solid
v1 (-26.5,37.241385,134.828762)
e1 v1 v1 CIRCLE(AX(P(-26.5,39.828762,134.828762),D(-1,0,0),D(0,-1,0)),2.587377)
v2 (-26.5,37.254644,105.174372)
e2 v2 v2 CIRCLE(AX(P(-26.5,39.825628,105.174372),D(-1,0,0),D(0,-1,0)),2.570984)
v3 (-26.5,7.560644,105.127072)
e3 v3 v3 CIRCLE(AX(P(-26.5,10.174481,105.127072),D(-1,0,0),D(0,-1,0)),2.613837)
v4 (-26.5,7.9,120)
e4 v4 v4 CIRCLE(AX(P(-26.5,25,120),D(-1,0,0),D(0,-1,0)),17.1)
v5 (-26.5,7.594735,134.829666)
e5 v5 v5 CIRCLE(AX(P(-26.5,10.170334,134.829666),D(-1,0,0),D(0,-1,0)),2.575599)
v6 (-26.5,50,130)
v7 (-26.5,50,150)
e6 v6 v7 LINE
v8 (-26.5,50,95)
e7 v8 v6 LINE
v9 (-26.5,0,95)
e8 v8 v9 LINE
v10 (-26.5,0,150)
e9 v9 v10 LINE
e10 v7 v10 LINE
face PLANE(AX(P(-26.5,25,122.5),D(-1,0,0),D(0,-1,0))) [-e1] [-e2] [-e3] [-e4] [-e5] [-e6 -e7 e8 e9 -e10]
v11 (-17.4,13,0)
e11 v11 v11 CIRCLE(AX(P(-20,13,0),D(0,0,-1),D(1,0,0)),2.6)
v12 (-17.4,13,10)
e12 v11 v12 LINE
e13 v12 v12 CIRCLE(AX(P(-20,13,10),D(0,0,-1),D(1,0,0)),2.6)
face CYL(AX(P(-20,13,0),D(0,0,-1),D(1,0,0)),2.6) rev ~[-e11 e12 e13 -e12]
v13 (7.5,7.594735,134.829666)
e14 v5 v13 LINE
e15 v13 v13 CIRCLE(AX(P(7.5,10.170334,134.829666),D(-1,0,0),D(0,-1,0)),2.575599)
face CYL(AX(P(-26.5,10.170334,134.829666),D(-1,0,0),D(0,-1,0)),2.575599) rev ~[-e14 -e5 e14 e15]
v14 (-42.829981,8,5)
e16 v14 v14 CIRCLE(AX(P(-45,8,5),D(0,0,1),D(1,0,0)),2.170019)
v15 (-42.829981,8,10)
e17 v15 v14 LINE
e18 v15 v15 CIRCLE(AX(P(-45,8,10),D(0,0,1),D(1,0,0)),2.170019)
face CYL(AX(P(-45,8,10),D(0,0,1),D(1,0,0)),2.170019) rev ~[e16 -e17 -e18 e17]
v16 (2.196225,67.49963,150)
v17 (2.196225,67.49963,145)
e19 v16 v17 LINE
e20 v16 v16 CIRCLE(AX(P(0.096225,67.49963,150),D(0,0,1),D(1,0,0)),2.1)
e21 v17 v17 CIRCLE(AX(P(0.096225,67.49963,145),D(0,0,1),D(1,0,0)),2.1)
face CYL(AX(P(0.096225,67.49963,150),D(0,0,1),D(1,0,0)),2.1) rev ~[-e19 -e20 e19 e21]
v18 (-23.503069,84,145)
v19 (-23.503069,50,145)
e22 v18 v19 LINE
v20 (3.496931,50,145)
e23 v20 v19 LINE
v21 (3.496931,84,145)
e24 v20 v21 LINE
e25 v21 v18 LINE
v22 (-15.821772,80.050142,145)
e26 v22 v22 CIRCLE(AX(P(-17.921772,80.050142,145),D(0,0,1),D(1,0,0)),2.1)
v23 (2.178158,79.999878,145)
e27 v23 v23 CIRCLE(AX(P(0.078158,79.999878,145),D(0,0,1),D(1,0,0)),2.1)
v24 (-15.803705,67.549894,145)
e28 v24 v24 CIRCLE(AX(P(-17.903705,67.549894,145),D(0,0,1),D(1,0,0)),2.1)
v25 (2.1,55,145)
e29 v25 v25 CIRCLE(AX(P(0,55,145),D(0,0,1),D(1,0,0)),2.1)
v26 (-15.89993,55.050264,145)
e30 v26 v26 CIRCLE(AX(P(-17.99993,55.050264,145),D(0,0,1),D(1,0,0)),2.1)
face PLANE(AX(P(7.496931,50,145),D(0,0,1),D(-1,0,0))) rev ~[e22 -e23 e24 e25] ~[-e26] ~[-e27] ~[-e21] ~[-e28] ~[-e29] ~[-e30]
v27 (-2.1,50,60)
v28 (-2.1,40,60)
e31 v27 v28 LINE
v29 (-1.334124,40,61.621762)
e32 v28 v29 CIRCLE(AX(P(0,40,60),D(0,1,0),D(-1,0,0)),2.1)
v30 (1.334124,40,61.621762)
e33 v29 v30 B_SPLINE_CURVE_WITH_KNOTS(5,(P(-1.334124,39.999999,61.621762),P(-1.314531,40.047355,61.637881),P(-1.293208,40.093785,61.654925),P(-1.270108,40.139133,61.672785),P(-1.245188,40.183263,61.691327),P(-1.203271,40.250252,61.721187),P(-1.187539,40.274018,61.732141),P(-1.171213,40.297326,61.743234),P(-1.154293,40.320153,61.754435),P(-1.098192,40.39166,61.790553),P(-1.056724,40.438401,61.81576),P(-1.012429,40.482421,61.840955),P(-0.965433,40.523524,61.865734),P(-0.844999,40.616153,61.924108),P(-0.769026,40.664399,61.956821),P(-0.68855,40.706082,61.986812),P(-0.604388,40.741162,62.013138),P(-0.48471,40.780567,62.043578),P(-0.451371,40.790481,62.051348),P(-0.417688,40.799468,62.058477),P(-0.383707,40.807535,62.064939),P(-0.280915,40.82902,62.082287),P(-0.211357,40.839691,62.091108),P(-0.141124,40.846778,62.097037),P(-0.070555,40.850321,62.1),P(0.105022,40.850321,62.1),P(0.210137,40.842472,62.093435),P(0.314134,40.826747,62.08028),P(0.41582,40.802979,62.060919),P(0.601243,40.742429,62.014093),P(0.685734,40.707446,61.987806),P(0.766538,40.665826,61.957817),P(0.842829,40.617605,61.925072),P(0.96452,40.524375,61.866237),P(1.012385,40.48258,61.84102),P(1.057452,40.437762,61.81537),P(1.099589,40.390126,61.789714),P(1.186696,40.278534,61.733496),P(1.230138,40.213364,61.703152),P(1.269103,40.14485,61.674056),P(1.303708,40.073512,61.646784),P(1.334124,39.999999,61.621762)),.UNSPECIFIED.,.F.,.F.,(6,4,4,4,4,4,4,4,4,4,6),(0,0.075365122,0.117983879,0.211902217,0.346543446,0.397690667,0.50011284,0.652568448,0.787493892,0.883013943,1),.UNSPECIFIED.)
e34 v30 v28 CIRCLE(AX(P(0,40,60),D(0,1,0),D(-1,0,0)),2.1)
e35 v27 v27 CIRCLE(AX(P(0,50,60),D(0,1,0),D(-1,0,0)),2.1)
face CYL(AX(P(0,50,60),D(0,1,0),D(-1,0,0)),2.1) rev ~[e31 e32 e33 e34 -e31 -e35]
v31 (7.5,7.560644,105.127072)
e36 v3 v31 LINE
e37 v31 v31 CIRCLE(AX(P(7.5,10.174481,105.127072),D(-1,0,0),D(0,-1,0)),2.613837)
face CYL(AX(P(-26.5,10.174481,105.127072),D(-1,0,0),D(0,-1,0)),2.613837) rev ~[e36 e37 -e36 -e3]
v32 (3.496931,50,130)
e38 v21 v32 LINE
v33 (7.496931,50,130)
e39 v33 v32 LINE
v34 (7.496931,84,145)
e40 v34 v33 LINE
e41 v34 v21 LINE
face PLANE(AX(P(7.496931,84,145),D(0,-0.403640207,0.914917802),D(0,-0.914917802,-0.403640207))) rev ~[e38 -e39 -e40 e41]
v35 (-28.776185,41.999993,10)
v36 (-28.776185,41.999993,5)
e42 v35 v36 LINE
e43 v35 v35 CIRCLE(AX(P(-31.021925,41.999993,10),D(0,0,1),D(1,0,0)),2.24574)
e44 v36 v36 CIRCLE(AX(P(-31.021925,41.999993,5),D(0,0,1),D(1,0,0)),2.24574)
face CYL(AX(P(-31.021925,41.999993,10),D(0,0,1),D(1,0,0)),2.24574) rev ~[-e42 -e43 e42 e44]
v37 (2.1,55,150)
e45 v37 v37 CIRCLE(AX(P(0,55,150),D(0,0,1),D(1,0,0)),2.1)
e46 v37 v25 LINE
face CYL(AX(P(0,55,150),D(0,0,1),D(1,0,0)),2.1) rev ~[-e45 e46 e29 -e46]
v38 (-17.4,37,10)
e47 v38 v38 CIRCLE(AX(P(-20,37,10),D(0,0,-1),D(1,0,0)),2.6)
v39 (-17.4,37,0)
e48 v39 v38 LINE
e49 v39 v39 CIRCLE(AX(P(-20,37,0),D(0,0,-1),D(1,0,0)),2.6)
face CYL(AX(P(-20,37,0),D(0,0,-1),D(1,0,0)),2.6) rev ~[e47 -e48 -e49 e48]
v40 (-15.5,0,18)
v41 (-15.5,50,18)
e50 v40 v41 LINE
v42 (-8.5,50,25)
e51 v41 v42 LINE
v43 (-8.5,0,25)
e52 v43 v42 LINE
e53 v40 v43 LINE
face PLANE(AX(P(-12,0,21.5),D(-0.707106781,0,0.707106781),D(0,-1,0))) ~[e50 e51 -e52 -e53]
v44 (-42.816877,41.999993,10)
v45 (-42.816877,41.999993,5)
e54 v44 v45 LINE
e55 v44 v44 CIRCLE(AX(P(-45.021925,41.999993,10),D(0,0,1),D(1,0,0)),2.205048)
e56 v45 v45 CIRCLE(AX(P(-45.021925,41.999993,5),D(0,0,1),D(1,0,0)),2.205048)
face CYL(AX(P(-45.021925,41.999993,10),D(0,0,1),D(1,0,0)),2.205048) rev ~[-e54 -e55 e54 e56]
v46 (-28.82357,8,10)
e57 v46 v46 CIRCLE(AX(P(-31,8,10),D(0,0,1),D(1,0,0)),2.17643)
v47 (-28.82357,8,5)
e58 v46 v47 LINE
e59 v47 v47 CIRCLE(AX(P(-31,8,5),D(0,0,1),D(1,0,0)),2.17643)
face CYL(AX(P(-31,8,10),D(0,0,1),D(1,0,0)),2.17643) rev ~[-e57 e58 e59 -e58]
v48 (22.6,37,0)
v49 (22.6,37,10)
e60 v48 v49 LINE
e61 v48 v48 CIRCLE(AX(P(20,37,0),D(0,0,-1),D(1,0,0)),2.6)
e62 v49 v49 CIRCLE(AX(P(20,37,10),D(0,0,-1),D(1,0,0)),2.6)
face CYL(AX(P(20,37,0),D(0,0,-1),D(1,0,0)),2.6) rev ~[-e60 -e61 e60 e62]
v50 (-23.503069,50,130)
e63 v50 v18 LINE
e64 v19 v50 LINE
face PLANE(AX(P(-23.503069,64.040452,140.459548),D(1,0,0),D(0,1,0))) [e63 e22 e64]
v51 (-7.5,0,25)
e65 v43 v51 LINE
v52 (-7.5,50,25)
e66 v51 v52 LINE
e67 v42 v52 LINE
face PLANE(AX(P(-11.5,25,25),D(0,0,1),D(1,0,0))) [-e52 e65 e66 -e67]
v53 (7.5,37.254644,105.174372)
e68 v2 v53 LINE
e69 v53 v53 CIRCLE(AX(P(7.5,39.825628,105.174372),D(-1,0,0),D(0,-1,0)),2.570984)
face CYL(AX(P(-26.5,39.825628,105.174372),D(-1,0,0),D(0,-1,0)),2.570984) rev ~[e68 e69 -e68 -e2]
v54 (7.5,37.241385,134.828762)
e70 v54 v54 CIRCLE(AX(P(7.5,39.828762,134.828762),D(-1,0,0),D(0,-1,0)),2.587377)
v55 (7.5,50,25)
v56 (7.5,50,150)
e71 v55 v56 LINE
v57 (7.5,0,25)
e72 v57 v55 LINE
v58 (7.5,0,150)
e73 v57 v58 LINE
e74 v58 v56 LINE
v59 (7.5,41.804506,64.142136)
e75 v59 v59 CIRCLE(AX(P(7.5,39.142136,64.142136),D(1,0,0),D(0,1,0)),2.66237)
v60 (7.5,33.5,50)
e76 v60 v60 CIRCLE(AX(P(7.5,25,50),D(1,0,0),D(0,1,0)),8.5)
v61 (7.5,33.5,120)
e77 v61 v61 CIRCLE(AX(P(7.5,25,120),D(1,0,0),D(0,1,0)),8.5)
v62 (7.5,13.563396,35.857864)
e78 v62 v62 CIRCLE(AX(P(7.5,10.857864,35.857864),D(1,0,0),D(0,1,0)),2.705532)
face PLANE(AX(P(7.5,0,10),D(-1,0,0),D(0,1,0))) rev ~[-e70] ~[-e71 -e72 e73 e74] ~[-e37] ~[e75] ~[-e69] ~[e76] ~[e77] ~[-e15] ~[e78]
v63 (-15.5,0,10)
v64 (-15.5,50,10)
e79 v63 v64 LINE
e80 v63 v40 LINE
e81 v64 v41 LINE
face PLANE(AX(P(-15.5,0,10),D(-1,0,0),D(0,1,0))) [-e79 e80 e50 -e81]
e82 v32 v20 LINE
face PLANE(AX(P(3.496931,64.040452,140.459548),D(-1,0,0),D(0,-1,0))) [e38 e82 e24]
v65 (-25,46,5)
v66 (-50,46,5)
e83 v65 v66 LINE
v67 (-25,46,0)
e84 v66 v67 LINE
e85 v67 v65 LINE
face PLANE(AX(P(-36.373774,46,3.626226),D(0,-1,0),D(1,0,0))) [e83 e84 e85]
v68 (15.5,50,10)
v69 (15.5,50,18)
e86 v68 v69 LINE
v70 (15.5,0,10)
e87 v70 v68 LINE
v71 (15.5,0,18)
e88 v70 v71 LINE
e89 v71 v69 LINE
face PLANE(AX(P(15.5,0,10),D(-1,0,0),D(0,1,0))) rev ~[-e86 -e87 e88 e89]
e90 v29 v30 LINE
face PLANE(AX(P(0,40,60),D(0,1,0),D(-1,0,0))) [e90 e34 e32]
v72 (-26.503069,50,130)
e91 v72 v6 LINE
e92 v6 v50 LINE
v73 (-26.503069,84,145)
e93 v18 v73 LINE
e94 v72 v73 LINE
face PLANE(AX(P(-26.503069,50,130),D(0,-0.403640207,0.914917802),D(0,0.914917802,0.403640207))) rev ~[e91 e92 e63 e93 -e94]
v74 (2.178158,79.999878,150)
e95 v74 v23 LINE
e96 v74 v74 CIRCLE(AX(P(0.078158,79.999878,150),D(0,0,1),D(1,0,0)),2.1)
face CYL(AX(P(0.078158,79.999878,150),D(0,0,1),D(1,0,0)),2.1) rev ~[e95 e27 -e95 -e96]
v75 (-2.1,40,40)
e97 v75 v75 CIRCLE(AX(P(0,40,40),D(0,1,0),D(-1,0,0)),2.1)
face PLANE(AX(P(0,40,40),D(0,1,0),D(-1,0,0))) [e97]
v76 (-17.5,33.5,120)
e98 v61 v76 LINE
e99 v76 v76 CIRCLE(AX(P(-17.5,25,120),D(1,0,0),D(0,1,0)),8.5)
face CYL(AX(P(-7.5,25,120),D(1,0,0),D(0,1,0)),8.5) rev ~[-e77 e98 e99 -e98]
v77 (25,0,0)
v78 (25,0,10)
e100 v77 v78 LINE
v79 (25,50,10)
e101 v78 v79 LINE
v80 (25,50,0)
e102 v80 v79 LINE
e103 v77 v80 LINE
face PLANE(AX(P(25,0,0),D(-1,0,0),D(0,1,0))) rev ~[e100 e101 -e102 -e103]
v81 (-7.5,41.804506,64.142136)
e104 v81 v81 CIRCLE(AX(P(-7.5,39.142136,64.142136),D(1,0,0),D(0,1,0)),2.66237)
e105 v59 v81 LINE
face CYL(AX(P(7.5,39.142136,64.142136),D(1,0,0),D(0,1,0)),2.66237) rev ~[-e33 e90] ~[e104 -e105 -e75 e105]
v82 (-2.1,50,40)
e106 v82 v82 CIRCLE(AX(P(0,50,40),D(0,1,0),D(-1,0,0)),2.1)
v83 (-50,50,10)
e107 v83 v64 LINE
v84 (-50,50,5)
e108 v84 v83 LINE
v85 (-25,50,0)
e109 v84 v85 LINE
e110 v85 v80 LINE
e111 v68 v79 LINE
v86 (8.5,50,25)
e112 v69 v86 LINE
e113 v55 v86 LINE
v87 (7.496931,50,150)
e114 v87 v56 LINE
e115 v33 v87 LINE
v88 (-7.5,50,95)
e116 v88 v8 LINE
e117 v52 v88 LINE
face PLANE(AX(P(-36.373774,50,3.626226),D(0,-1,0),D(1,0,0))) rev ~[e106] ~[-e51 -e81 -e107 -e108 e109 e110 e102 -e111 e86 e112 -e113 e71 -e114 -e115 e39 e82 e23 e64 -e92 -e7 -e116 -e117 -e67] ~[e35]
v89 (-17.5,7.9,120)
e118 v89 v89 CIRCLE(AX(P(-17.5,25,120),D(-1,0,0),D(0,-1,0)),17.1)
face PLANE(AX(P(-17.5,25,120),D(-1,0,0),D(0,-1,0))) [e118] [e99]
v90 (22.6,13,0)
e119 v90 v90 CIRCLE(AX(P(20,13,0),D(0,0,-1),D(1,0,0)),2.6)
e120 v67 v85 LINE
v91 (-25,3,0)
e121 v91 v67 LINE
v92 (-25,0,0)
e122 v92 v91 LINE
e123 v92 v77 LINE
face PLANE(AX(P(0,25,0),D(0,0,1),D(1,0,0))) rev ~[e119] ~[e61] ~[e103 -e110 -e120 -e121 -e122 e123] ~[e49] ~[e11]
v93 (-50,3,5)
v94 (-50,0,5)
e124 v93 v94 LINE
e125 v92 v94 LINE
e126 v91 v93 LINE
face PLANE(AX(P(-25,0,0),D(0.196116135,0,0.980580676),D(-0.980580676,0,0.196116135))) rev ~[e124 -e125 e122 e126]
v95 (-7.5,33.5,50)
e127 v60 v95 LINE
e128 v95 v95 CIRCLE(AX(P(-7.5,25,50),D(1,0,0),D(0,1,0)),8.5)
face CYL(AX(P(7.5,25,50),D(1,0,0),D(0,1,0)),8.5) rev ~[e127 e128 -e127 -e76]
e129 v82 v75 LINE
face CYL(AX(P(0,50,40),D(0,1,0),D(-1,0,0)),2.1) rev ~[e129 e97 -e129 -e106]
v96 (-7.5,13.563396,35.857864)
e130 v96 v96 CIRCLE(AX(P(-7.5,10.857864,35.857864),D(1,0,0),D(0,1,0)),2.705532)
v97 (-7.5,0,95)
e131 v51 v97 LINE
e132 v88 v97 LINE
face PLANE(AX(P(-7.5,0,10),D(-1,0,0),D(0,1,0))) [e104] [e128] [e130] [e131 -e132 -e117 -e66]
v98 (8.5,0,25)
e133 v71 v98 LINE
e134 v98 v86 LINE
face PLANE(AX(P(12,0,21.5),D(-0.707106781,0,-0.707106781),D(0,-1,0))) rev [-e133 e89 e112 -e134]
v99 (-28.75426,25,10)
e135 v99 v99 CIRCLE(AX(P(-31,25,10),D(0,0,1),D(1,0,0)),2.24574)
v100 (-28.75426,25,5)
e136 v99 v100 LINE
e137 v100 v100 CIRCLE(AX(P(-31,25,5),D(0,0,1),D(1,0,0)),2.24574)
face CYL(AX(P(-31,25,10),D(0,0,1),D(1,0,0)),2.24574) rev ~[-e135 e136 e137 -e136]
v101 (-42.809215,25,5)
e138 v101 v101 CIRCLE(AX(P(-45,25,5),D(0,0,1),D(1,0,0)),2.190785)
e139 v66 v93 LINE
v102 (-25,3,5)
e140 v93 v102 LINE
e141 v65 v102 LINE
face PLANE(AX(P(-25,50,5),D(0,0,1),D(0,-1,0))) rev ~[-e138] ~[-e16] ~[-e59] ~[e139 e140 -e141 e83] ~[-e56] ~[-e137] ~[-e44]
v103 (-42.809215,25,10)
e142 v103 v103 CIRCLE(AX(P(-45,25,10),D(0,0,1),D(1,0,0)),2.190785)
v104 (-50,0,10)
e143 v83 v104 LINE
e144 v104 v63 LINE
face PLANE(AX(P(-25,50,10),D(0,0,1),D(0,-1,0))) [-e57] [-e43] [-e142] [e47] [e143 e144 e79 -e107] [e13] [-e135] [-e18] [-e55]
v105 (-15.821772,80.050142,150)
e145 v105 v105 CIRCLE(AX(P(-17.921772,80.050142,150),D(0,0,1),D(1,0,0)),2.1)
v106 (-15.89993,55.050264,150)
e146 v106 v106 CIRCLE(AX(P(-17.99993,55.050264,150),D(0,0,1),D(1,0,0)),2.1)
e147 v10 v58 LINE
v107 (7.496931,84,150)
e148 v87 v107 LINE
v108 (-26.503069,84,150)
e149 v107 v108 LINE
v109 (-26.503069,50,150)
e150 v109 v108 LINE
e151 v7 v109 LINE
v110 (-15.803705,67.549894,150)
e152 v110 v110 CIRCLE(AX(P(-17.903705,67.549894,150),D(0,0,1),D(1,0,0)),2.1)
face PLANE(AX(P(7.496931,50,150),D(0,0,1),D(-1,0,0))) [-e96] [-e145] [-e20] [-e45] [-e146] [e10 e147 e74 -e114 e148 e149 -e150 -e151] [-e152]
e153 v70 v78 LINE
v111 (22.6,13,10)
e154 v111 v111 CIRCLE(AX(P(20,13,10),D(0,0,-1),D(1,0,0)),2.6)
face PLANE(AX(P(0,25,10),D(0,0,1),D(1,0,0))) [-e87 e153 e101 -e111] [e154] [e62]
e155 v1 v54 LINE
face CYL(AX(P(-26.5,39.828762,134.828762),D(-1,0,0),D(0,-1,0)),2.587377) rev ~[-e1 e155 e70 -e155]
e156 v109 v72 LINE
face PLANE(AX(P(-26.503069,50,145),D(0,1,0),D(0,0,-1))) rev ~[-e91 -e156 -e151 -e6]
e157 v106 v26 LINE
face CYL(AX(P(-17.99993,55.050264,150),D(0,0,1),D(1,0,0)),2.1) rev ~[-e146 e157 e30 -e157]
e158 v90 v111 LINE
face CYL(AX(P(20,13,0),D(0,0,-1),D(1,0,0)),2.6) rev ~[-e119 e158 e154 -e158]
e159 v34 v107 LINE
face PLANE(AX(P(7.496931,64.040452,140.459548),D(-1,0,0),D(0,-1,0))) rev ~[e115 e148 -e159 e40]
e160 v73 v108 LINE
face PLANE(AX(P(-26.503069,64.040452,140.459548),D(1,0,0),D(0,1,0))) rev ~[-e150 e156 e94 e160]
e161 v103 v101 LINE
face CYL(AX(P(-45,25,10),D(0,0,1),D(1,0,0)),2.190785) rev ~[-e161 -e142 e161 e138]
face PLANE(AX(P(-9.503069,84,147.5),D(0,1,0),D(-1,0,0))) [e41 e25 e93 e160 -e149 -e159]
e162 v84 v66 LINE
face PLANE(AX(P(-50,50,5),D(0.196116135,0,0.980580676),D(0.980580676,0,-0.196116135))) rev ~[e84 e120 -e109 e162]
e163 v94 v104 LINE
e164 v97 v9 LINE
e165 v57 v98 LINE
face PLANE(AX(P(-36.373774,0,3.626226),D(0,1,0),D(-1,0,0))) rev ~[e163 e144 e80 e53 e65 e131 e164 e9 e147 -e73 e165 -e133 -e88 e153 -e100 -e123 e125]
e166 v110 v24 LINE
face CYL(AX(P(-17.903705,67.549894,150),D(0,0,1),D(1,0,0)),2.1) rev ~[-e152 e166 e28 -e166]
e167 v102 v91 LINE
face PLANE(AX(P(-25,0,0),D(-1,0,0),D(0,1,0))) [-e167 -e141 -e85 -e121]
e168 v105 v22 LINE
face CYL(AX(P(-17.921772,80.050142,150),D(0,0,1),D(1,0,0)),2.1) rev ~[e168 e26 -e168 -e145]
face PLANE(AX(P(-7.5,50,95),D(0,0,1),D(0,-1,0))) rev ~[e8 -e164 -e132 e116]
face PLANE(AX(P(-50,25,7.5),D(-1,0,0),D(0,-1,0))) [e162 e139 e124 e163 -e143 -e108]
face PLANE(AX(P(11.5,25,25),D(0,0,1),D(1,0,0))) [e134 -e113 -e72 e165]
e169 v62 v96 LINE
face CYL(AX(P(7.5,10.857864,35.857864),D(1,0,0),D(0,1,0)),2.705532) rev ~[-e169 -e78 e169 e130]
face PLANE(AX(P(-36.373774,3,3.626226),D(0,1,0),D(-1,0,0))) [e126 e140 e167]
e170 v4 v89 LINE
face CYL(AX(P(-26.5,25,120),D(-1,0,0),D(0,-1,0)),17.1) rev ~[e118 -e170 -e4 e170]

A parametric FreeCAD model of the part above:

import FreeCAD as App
import Part
import Sketcher

V = App.Vector


def edges_at(feature, points):
    """Names of the edges that pass closest to the given points."""
    edges = feature.Shape.Edges
    near = lambda p: min(range(len(edges)), key=lambda i: edges[i].distToShape(Part.Vertex(*p))[0])
    return sorted({f"Edge{near(p) + 1}" for p in points})

doc = App.newDocument("Part")
body = doc.addObject("PartDesign::Body", "Body")

sketch1 = body.newObject("Sketcher::SketchObject", "Sketch")
sketch1.AttachmentSupport = (doc.getObject("XY_Plane"), [""])
sketch1.MapMode = "FlatFace"
sketch1.addGeometry([
    Part.LineSegment(V(-25, 50, 0), V(-25, 0, 0)),
    Part.LineSegment(V(-25, 0, 0), V(25, 0, 0)),
    Part.LineSegment(V(25, 0, 0), V(25, 50, 0)),
    Part.LineSegment(V(25, 50, 0), V(-25, 50, 0)),
], False)
sketch1.addConstraint([
    Sketcher.Constraint("Coincident", 0, 2, 1, 1),
    Sketcher.Constraint("Coincident", 1, 2, 2, 1),
    Sketcher.Constraint("Coincident", 2, 2, 3, 1),
    Sketcher.Constraint("Coincident", 3, 2, 0, 1),
    Sketcher.Constraint("Vertical", 0),
    Sketcher.Constraint("Horizontal", 1),
    Sketcher.Constraint("Vertical", 2),
    Sketcher.Constraint("Horizontal", 3),
    Sketcher.Constraint("Symmetric", 0, 2, 1, 2, -1, 1),
    Sketcher.Constraint("Equal", 3, 0),
    Sketcher.Constraint("DistanceX", 1, 1, 1, 2, 50.0),
])
pad1 = body.newObject("PartDesign::Pad", "Pad")
pad1.Profile = sketch1
pad1.Length = 10

sketch2 = body.newObject("Sketcher::SketchObject", "Sketch001")
sketch2.AttachmentSupport = (doc.getObject("XY_Plane"), [""])
sketch2.MapMode = "FlatFace"
sketch2.AttachmentOffset = App.Placement(V(0, 0, 10), App.Rotation())
sketch2.addGeometry([
    Part.LineSegment(V(-8, 50, 0), V(-8, 0, 0)),
    Part.LineSegment(V(-8, 0, 0), V(8, 0, 0)),
    Part.LineSegment(V(8, 0, 0), V(8, 50, 0)),
    Part.LineSegment(V(8, 50, 0), V(-8, 50, 0)),
], False)
sketch2.addConstraint([
    Sketcher.Constraint("Coincident", 0, 2, 1, 1),
    Sketcher.Constraint("Coincident", 1, 2, 2, 1),
    Sketcher.Constraint("Coincident", 2, 2, 3, 1),
    Sketcher.Constraint("Coincident", 3, 2, 0, 1),
    Sketcher.Constraint("Vertical", 0),
    Sketcher.Constraint("Horizontal", 1),
    Sketcher.Constraint("Vertical", 2),
    Sketcher.Constraint("Horizontal", 3),
    Sketcher.Constraint("Symmetric", 0, 2, 1, 2, -1, 1),
    Sketcher.Constraint("DistanceX", 1, 1, 1, 2, 15.0),
    Sketcher.Constraint("DistanceY", 0, 2, 0, 1, 50.0),
])
pad2 = body.newObject("PartDesign::Pad", "Pad001")
pad2.Profile = sketch2
pad2.Length = 140

sketch3 = body.newObject("Sketcher::SketchObject", "Sketch002")
sketch3.AttachmentSupport = (doc.getObject("XY_Plane"), [""])
sketch3.MapMode = "FlatFace"
sketch3.addGeometry([
    Part.Circle(V(-20, 13, 0), V(0, 0, 1), 2.6),
    Part.Circle(V(20, 13, 0), V(0, 0, 1), 2.6),
    Part.Circle(V(-20, 37, 0), V(0, 0, 1), 2.6),
    Part.Circle(V(20, 37, 0), V(0, 0, 1), 2.6),
], False)
sketch3.addConstraint([
    Sketcher.Constraint("Equal", 0, 1),
    Sketcher.Constraint("Equal", 1, 2),
    Sketcher.Constraint("Equal", 2, 3),
    Sketcher.Constraint("Symmetric", 0, 3, 1, 3, -2),
    Sketcher.Constraint("Symmetric", 2, 3, 3, 3, -2),
    Sketcher.Constraint("Vertical", 0, 3, 2, 3),
    Sketcher.Constraint("Diameter", 0, 5.2),
    Sketcher.Constraint("DistanceX", 0, 3, -1, 1, 20.0),
    Sketcher.Constraint("DistanceY", -1, 1, 0, 3, 13.0),
    Sketcher.Constraint("DistanceY", -1, 1, 2, 3, 37.0),
])
pocket1 = body.newObject("PartDesign::Pocket", "Pocket")
pocket1.Profile = sketch3
pocket1.Length = 10
pocket1.Reversed = True

sketch4 = body.newObject("Sketcher::SketchObject", "Sketch003")
sketch4.AttachmentSupport = (doc.getObject("YZ_Plane"), [""])
sketch4.MapMode = "FlatFace"
sketch4.AttachmentOffset = App.Placement(V(0, 0, 7.5), App.Rotation())
sketch4.addGeometry([
    Part.Circle(V(25, 50, 0), V(0, 0, 1), 8.5),
    Part.Circle(V(25, 120, 0), V(0, 0, 1), 8.5),
    Part.Circle(V(39.1, 64.1, 0), V(0, 0, 1), 2.7),
    Part.Circle(V(10.9, 35.9, 0), V(0, 0, 1), 2.7),
], False)
sketch4.addConstraint([
    Sketcher.Constraint("Equal", 0, 1),
    Sketcher.Constraint("Vertical", 0, 3, 1, 3),
    Sketcher.Constraint("Diameter", 0, 17.0),
    Sketcher.Constraint("DistanceX", -1, 1, 0, 3, 25.0),
    Sketcher.Constraint("DistanceY", -1, 1, 0, 3, 50.0),
    Sketcher.Constraint("DistanceY", -1, 1, 1, 3, 120.0),
    Sketcher.Constraint("Diameter", 2, 5.32474),
    Sketcher.Constraint("Diameter", 3, 5.411064),
    Sketcher.Constraint("DistanceY", 3, 3, 2, 3, 28.284272),
    Sketcher.Constraint("DistanceX", -1, 1, 2, 3, 39.142136),
    Sketcher.Constraint("DistanceY", -1, 1, 2, 3, 64.142136),
    Sketcher.Constraint("DistanceX", -1, 1, 3, 3, 10.857864),
])
pocket2 = body.newObject("PartDesign::Pocket", "Pocket001")
pocket2.Profile = sketch4
pocket2.Length = 15

sketch5 = body.newObject("Sketcher::SketchObject", "Sketch004")
sketch5.AttachmentSupport = (doc.getObject("YZ_Plane"), [""])
sketch5.MapMode = "FlatFace"
sketch5.AttachmentOffset = App.Placement(V(0, 0, -7.5), App.Rotation())
sketch5.addGeometry([
    Part.LineSegment(V(50, 150, 0), V(50, 95, 0)),
    Part.LineSegment(V(50, 95, 0), V(0, 95, 0)),
    Part.LineSegment(V(0, 95, 0), V(0, 150, 0)),
    Part.LineSegment(V(0, 150, 0), V(50, 150, 0)),
], False)
sketch5.addConstraint([
    Sketcher.Constraint("Coincident", 0, 2, 1, 1),
    Sketcher.Constraint("Coincident", 1, 2, 2, 1),
    Sketcher.Constraint("Coincident", 2, 2, 3, 1),
    Sketcher.Constraint("Coincident", 3, 2, 0, 1),
    Sketcher.Constraint("Vertical", 0),
    Sketcher.Constraint("Horizontal", 1),
    Sketcher.Constraint("Vertical", 2),
    Sketcher.Constraint("Horizontal", 3),
    Sketcher.Constraint("PointOnObject", 1, 2, -2),
    Sketcher.Constraint("DistanceX", 1, 2, 1, 1, 50.0),
    Sketcher.Constraint("DistanceY", 0, 2, 0, 1, 55.0),
    Sketcher.Constraint("DistanceY", -1, 1, 0, 2, 95.0),
])
pad3 = body.newObject("PartDesign::Pad", "Pad002")
pad3.Profile = sketch5
pad3.Length = 19
pad3.Reversed = True

sketch6 = body.newObject("Sketcher::SketchObject", "Sketch005")
sketch6.AttachmentSupport = (doc.getObject("XY_Plane"), [""])
sketch6.MapMode = "FlatFace"
sketch6.AttachmentOffset = App.Placement(V(0, 0, 10), App.Rotation())
sketch6.addGeometry([
    Part.LineSegment(V(8, 50, 0), V(8, 0, 0)),
    Part.LineSegment(V(8, 0, 0), V(16, 0, 0)),
    Part.LineSegment(V(16, 0, 0), V(16, 50, 0)),
    Part.LineSegment(V(16, 50, 0), V(8, 50, 0)),
    Part.LineSegment(V(-16, 50, 0), V(-16, 0, 0)),
    Part.LineSegment(V(-16, 0, 0), V(-8, 0, 0)),
    Part.LineSegment(V(-8, 0, 0), V(-8, 50, 0)),
    Part.LineSegment(V(-8, 50, 0), V(-16, 50, 0)),
], False)
sketch6.addConstraint([
    Sketcher.Constraint("Coincident", 0, 2, 1, 1),
    Sketcher.Constraint("Coincident", 1, 2, 2, 1),
    Sketcher.Constraint("Coincident", 2, 2, 3, 1),
    Sketcher.Constraint("Coincident", 3, 2, 0, 1),
    Sketcher.Constraint("Coincident", 4, 2, 5, 1),
    Sketcher.Constraint("Coincident", 5, 2, 6, 1),
    Sketcher.Constraint("Coincident", 6, 2, 7, 1),
    Sketcher.Constraint("Coincident", 7, 2, 4, 1),
    Sketcher.Constraint("Vertical", 0),
    Sketcher.Constraint("Horizontal", 1),
    Sketcher.Constraint("Vertical", 2),
    Sketcher.Constraint("Horizontal", 3),
    Sketcher.Constraint("Vertical", 4),
    Sketcher.Constraint("Horizontal", 5),
    Sketcher.Constraint("Vertical", 6),
    Sketcher.Constraint("Horizontal", 7),
    Sketcher.Constraint("Symmetric", 1, 2, 4, 2, -1, 1),
    Sketcher.Constraint("Symmetric", 0, 2, 5, 2, -2),
    Sketcher.Constraint("Horizontal", 3, 2, 6, 2),
    Sketcher.Constraint("DistanceX", 1, 1, 1, 2, 8.0),
    Sketcher.Constraint("DistanceY", 0, 2, 0, 1, 50.0),
    Sketcher.Constraint("DistanceX", 4, 2, 0, 2, 23.0),
])
pad4 = body.newObject("PartDesign::Pad", "Pad003")
pad4.Profile = sketch6
pad4.Length = 15

sketch7 = body.newObject("Sketcher::SketchObject", "Sketch006")
sketch7.AttachmentSupport = (doc.getObject("YZ_Plane"), [""])
sketch7.MapMode = "FlatFace"
sketch7.AttachmentOffset = App.Placement(V(0, 0, -7.5), App.Rotation())
sketch7.addGeometry(Part.Circle(V(25, 120, 0), V(0, 0, 1), 8), False)
sketch7.addConstraint([
    Sketcher.Constraint("Diameter", 0, 17.0),
    Sketcher.Constraint("DistanceX", -1, 1, 0, 3, 25.0),
    Sketcher.Constraint("DistanceY", -1, 1, 0, 3, 120.0),
])
pocket3 = body.newObject("PartDesign::Pocket", "Pocket002")
pocket3.Profile = sketch7
pocket3.Length = 65

sketch8 = body.newObject("Sketcher::SketchObject", "Sketch007")
sketch8.AttachmentSupport = (doc.getObject("YZ_Plane"), [""])
sketch8.MapMode = "FlatFace"
sketch8.AttachmentOffset = App.Placement(V(0, 0, -26.5), App.Rotation())
sketch8.addGeometry(Part.Circle(V(25, 120, 0), V(0, 0, 1), 17), False)
sketch8.addConstraint([
    Sketcher.Constraint("Diameter", 0, 34.2),
    Sketcher.Constraint("DistanceX", -1, 1, 0, 3, 25.0),
    Sketcher.Constraint("DistanceY", -1, 1, 0, 3, 120.0),
])
pocket4 = body.newObject("PartDesign::Pocket", "Pocket003")
pocket4.Profile = sketch8
pocket4.Length = 9
pocket4.Reversed = True

sketch9 = body.newObject("Sketcher::SketchObject", "Sketch008")
sketch9.AttachmentSupport = (doc.getObject("YZ_Plane"), [""])
sketch9.MapMode = "FlatFace"
sketch9.AttachmentOffset = App.Placement(V(0, 0, -26.5), App.Rotation())
sketch9.addGeometry([
    Part.Circle(V(39.8, 105.2, 0), V(0, 0, 1), 2.6),
    Part.Circle(V(39.8, 134.8, 0), V(0, 0, 1), 2.6),
    Part.Circle(V(10.2, 134.8, 0), V(0, 0, 1), 2.6),
    Part.Circle(V(10.2, 105.1, 0), V(0, 0, 1), 2.6),
], False)
sketch9.addConstraint([
    Sketcher.Constraint("Diameter", 0, 5.141968),
    Sketcher.Constraint("Diameter", 1, 5.174754),
    Sketcher.Constraint("Diameter", 2, 5.151198),
    Sketcher.Constraint("Diameter", 3, 5.227674),
    Sketcher.Constraint("DistanceY", 3, 3, 0, 3, 0.0473),
    Sketcher.Constraint("DistanceX", -1, 1, 0, 3, 39.825628),
    Sketcher.Constraint("DistanceX", -1, 1, 1, 3, 39.828762),
    Sketcher.Constraint("DistanceX", -1, 1, 3, 3, 10.174481),
    Sketcher.Constraint("DistanceY", -1, 1, 3, 3, 105.127072),
    Sketcher.Constraint("DistanceY", 0, 3, 1, 3, 29.65439),
    Sketcher.Constraint("DistanceX", -1, 1, 2, 3, 10.170334),
    Sketcher.Constraint("DistanceY", -1, 1, 2, 3, 134.829666),
])
pocket5 = body.newObject("PartDesign::Pocket", "Pocket004")
pocket5.Profile = sketch9
pocket5.Length = 65
pocket5.Reversed = True
doc.recompute()

chamfer = body.newObject("PartDesign::Chamfer", "Chamfer")
chamfer.Base = (pocket5, edges_at(pocket5, [(15.5, 25, 25)]))
chamfer.Size = 7
doc.recompute()

chamfer2 = body.newObject("PartDesign::Chamfer", "Chamfer001")
chamfer2.Base = (chamfer, edges_at(chamfer, [(-15.5, 25, 25)]))
chamfer2.Size = 7

sketch10 = body.newObject("Sketcher::SketchObject", "Sketch009")
sketch10.AttachmentSupport = (doc.getObject("XZ_Plane"), [""])
sketch10.MapMode = "FlatFace"
sketch10.AttachmentOffset = App.Placement(V(0, 0, -50), App.Rotation())
sketch10.addGeometry([
    Part.Circle(V(0, 60, 0), V(0, 0, 1), 2.1),
    Part.Circle(V(0, 40, 0), V(0, 0, 1), 2.1),
], False)
sketch10.addConstraint([
    Sketcher.Constraint("Equal", 0, 1),
    Sketcher.Constraint("PointOnObject", 0, 3, -2),
    Sketcher.Constraint("PointOnObject", 1, 3, -2),
    Sketcher.Constraint("Diameter", 0, 4.2),
    Sketcher.Constraint("DistanceY", -1, 1, 0, 3, 60.0),
    Sketcher.Constraint("DistanceY", -1, 1, 1, 3, 40.0),
])
pocket6 = body.newObject("PartDesign::Pocket", "Pocket005")
pocket6.Profile = sketch10
pocket6.Length = 10
pocket6.Reversed = True

sketch11 = body.newObject("Sketcher::SketchObject", "Sketch010")
sketch11.AttachmentSupport = (doc.getObject("XZ_Plane"), [""])
sketch11.MapMode = "FlatFace"
sketch11.AttachmentOffset = App.Placement(V(0, 0, -50), App.Rotation())
sketch11.addGeometry([
    Part.LineSegment(V(7, 150, 0), V(7, 145, 0)),
    Part.LineSegment(V(7, 145, 0), V(-27, 145, 0)),
    Part.LineSegment(V(-27, 145, 0), V(-27, 150, 0)),
    Part.LineSegment(V(-27, 150, 0), V(7, 150, 0)),
], False)
sketch11.addConstraint([
    Sketcher.Constraint("Coincident", 0, 2, 1, 1),
    Sketcher.Constraint("Coincident", 1, 2, 2, 1),
    Sketcher.Constraint("Coincident", 2, 2, 3, 1),
    Sketcher.Constraint("Coincident", 3, 2, 0, 1),
    Sketcher.Constraint("Vertical", 0),
    Sketcher.Constraint("Horizontal", 1),
    Sketcher.Constraint("Vertical", 2),
    Sketcher.Constraint("Horizontal", 3),
    Sketcher.Constraint("DistanceX", 1, 2, 1, 1, 34.0),
    Sketcher.Constraint("DistanceY", 0, 2, 0, 1, 5.0),
    Sketcher.Constraint("DistanceY", -1, 1, 0, 2, 145.0),
    Sketcher.Constraint("DistanceX", -1, 1, 0, 2, 7.496931),
])
pad5 = body.newObject("PartDesign::Pad", "Pad004")
pad5.Profile = sketch11
pad5.Length = 34
pad5.Reversed = True

sketch12 = body.newObject("Sketcher::SketchObject", "Sketch011")
sketch12.AttachmentSupport = (doc.getObject("YZ_Plane"), [""])
sketch12.MapMode = "FlatFace"
sketch12.AttachmentOffset = App.Placement(V(0, 0, 7.496931), App.Rotation())
sketch12.addGeometry([
    Part.LineSegment(V(84, 145, 0), V(50, 145, 0)),
    Part.LineSegment(V(50, 145, 0), V(50, 130, 0)),
    Part.LineSegment(V(50, 130, 0), V(84, 145, 0)),
], False)
sketch12.addConstraint([
    Sketcher.Constraint("Coincident", 0, 2, 1, 1),
    Sketcher.Constraint("Coincident", 1, 2, 2, 1),
    Sketcher.Constraint("Coincident", 2, 2, 0, 1),
    Sketcher.Constraint("Horizontal", 0),
    Sketcher.Constraint("Vertical", 1),
    Sketcher.Constraint("DistanceX", 0, 2, 0, 1, 34.0),
    Sketcher.Constraint("DistanceY", 1, 2, 1, 1, 15.0),
    Sketcher.Constraint("DistanceX", -1, 1, 0, 2, 50.0),
    Sketcher.Constraint("DistanceY", -1, 1, 0, 2, 145.0),
])
pad6 = body.newObject("PartDesign::Pad", "Pad005")
pad6.Profile = sketch12
pad6.Length = 4
pad6.Reversed = True

sketch13 = body.newObject("Sketcher::SketchObject", "Sketch012")
sketch13.AttachmentSupport = (doc.getObject("YZ_Plane"), [""])
sketch13.MapMode = "FlatFace"
sketch13.AttachmentOffset = App.Placement(V(0, 0, -26.503069), App.Rotation())
sketch13.addGeometry([
    Part.LineSegment(V(50, 145, 0), V(84, 145, 0)),
    Part.LineSegment(V(84, 145, 0), V(50, 130, 0)),
    Part.LineSegment(V(50, 130, 0), V(50, 145, 0)),
], False)
sketch13.addConstraint([
    Sketcher.Constraint("Coincident", 0, 2, 1, 1),
    Sketcher.Constraint("Coincident", 1, 2, 2, 1),
    Sketcher.Constraint("Coincident", 2, 2, 0, 1),
    Sketcher.Constraint("Horizontal", 0),
    Sketcher.Constraint("Vertical", 2),
    Sketcher.Constraint("DistanceX", 0, 1, 0, 2, 34.0),
    Sketcher.Constraint("DistanceY", 2, 1, 2, 2, 15.0),
    Sketcher.Constraint("DistanceX", -1, 1, 0, 2, 84.0),
    Sketcher.Constraint("DistanceY", -1, 1, 0, 2, 145.0),
])
pad7 = body.newObject("PartDesign::Pad", "Pad006")
pad7.Profile = sketch13
pad7.Length = 3

sketch14 = body.newObject("Sketcher::SketchObject", "Sketch013")
sketch14.AttachmentSupport = (doc.getObject("XY_Plane"), [""])
sketch14.MapMode = "FlatFace"
sketch14.AttachmentOffset = App.Placement(V(0, 0, 150), App.Rotation())
sketch14.addGeometry([
    Part.Circle(V(-17.9, 80.1, 0), V(0, 0, 1), 2.1),
    Part.Circle(V(-17.9, 67.5, 0), V(0, 0, 1), 2.1),
    Part.Circle(V(-18, 55.1, 0), V(0, 0, 1), 2.1),
    Part.Circle(V(0.1, 80, 0), V(0, 0, 1), 2.1),
    Part.Circle(V(0.1, 67.5, 0), V(0, 0, 1), 2.1),
    Part.Circle(V(0, 55, 0), V(0, 0, 1), 2.1),
], False)
sketch14.addConstraint([
    Sketcher.Constraint("Equal", 0, 1),
    Sketcher.Constraint("Equal", 1, 2),
    Sketcher.Constraint("Equal", 2, 3),
    Sketcher.Constraint("Equal", 3, 4),
    Sketcher.Constraint("Equal", 4, 5),
    Sketcher.Constraint("PointOnObject", 5, 3, -2),
    Sketcher.Constraint("Diameter", 0, 4.2),
    Sketcher.Constraint("DistanceY", -1, 1, 5, 3, 55.0),
    Sketcher.Constraint("DistanceY", -1, 1, 0, 3, 80.050142),
    Sketcher.Constraint("DistanceX", 2, 3, -1, 1, 17.99993),
    Sketcher.Constraint("DistanceX", -1, 1, 3, 3, 0.078158),
    Sketcher.Constraint("DistanceY", -1, 1, 4, 3, 67.49963),
    Sketcher.Constraint("DistanceY", 2, 3, 1, 3, 12.49963),
    Sketcher.Constraint("DistanceX", 0, 3, 3, 3, 17.99993),
    Sketcher.Constraint("DistanceX", 1, 3, 4, 3, 17.99993),
    Sketcher.Constraint("DistanceX", 1, 3, -1, 1, 17.903705),
    Sketcher.Constraint("DistanceY", -1, 1, 1, 3, 67.549894),
    Sketcher.Constraint("DistanceY", -1, 1, 3, 3, 79.999878),
])
pocket7 = body.newObject("PartDesign::Pocket", "Pocket006")
pocket7.Profile = sketch14
pocket7.Length = 5

sketch15 = body.newObject("Sketcher::SketchObject", "Sketch014")
sketch15.AttachmentSupport = (doc.getObject("YZ_Plane"), [""])
sketch15.MapMode = "FlatFace"
sketch15.AttachmentOffset = App.Placement(V(0, 0, -25), App.Rotation())
sketch15.addGeometry([
    Part.LineSegment(V(50, 10, 0), V(50, 5, 0)),
    Part.LineSegment(V(50, 5, 0), V(0, 5, 0)),
    Part.LineSegment(V(0, 5, 0), V(0, 10, 0)),
    Part.LineSegment(V(0, 10, 0), V(50, 10, 0)),
], False)
sketch15.addConstraint([
    Sketcher.Constraint("Coincident", 0, 2, 1, 1),
    Sketcher.Constraint("Coincident", 1, 2, 2, 1),
    Sketcher.Constraint("Coincident", 2, 2, 3, 1),
    Sketcher.Constraint("Coincident", 3, 2, 0, 1),
    Sketcher.Constraint("Vertical", 0),
    Sketcher.Constraint("Horizontal", 1),
    Sketcher.Constraint("Vertical", 2),
    Sketcher.Constraint("Horizontal", 3),
    Sketcher.Constraint("PointOnObject", 1, 2, -2),
    Sketcher.Constraint("DistanceX", 1, 2, 1, 1, 50.0),
    Sketcher.Constraint("DistanceY", 0, 2, 0, 1, 5.0),
    Sketcher.Constraint("DistanceY", -1, 1, 0, 2, 5.0),
])
pad8 = body.newObject("PartDesign::Pad", "Pad007")
pad8.Profile = sketch15
pad8.Length = 25
pad8.Reversed = True

sketch16 = body.newObject("Sketcher::SketchObject", "Sketch015")
sketch16.AttachmentSupport = (doc.getObject("XZ_Plane"), [""])
sketch16.MapMode = "FlatFace"
sketch16.AttachmentOffset = App.Placement(V(0, 0, -50), App.Rotation())
sketch16.addGeometry([
    Part.LineSegment(V(-25, 5, 0), V(-25, 0, 0)),
    Part.LineSegment(V(-25, 0, 0), V(-50, 5, 0)),
    Part.LineSegment(V(-50, 5, 0), V(-25, 5, 0)),
], False)
sketch16.addConstraint([
    Sketcher.Constraint("Coincident", 0, 2, 1, 1),
    Sketcher.Constraint("Coincident", 1, 2, 2, 1),
    Sketcher.Constraint("Coincident", 2, 2, 0, 1),
    Sketcher.Constraint("Vertical", 0),
    Sketcher.Constraint("Horizontal", 2),
    Sketcher.Constraint("PointOnObject", 0, 2, -1),
    Sketcher.Constraint("DistanceX", 2, 1, 2, 2, 25.0),
    Sketcher.Constraint("DistanceY", 0, 2, 0, 1, 5.0),
    Sketcher.Constraint("DistanceX", 0, 2, -1, 1, 25.0),
])
pad9 = body.newObject("PartDesign::Pad", "Pad008")
pad9.Profile = sketch16
pad9.Length = 4

sketch17 = body.newObject("Sketcher::SketchObject", "Sketch016")
sketch17.AttachmentSupport = (doc.getObject("XZ_Plane"), [""])
sketch17.MapMode = "FlatFace"
sketch17.addGeometry([
    Part.LineSegment(V(-25, 5, 0), V(-50, 5, 0)),
    Part.LineSegment(V(-50, 5, 0), V(-25, 0, 0)),
    Part.LineSegment(V(-25, 0, 0), V(-25, 5, 0)),
], False)
sketch17.addConstraint([
    Sketcher.Constraint("Coincident", 0, 2, 1, 1),
    Sketcher.Constraint("Coincident", 1, 2, 2, 1),
    Sketcher.Constraint("Coincident", 2, 2, 0, 1),
    Sketcher.Constraint("Horizontal", 0),
    Sketcher.Constraint("Vertical", 2),
    Sketcher.Constraint("PointOnObject", 1, 2, -1),
    Sketcher.Constraint("DistanceX", 0, 2, 0, 1, 25.0),
    Sketcher.Constraint("DistanceY", 2, 1, 2, 2, 5.0),
    Sketcher.Constraint("DistanceX", 0, 2, -1, 1, 50.0),
])
pad10 = body.newObject("PartDesign::Pad", "Pad009")
pad10.Profile = sketch17
pad10.Length = 3
pad10.Reversed = True

sketch18 = body.newObject("Sketcher::SketchObject", "Sketch017")
sketch18.AttachmentSupport = (doc.getObject("XY_Plane"), [""])
sketch18.MapMode = "FlatFace"
sketch18.AttachmentOffset = App.Placement(V(0, 0, 10), App.Rotation())
sketch18.addGeometry([
    Part.Circle(V(-45, 42, 0), V(0, 0, 1), 2.2),
    Part.Circle(V(-45, 25, 0), V(0, 0, 1), 2.2),
    Part.Circle(V(-45, 8, 0), V(0, 0, 1), 2.2),
    Part.Circle(V(-31, 8, 0), V(0, 0, 1), 2.2),
    Part.Circle(V(-31, 25, 0), V(0, 0, 1), 2.2),
    Part.Circle(V(-31, 42, 0), V(0, 0, 1), 2.2),
], False)
sketch18.addConstraint([
    Sketcher.Constraint("Equal", 4, 5),
    Sketcher.Constraint("Horizontal", 2, 3, 3, 3),
    Sketcher.Constraint("Horizontal", 1, 3, 4, 3),
    Sketcher.Constraint("Horizontal", 0, 3, 5, 3),
    Sketcher.Constraint("Vertical", 1, 3, 2, 3),
    Sketcher.Constraint("Vertical", 3, 3, 4, 3),
    Sketcher.Constraint("DistanceX", 1, 3, -1, 1, 45.0),
    Sketcher.Constraint("DistanceY", -1, 1, 1, 3, 25.0),
    Sketcher.Constraint("DistanceY", -1, 1, 2, 3, 8.0),
    Sketcher.Constraint("DistanceX", 3, 3, -1, 1, 31.0),
    Sketcher.Constraint("DistanceX", 0, 3, 5, 3, 14.0),
    Sketcher.Constraint("Diameter", 1, 4.38157),
    Sketcher.Constraint("Diameter", 3, 4.35286),
    Sketcher.Constraint("Diameter", 4, 4.49148),
    Sketcher.Constraint("Diameter", 0, 4.410096),
    Sketcher.Constraint("Diameter", 2, 4.340038),
    Sketcher.Constraint("DistanceX", 0, 3, -1, 1, 45.021925),
    Sketcher.Constraint("DistanceY", -1, 1, 0, 3, 41.999993),
])
pocket8 = body.newObject("PartDesign::Pocket", "Pocket007")
pocket8.Profile = sketch18
pocket8.Length = 5

doc.recompute()
